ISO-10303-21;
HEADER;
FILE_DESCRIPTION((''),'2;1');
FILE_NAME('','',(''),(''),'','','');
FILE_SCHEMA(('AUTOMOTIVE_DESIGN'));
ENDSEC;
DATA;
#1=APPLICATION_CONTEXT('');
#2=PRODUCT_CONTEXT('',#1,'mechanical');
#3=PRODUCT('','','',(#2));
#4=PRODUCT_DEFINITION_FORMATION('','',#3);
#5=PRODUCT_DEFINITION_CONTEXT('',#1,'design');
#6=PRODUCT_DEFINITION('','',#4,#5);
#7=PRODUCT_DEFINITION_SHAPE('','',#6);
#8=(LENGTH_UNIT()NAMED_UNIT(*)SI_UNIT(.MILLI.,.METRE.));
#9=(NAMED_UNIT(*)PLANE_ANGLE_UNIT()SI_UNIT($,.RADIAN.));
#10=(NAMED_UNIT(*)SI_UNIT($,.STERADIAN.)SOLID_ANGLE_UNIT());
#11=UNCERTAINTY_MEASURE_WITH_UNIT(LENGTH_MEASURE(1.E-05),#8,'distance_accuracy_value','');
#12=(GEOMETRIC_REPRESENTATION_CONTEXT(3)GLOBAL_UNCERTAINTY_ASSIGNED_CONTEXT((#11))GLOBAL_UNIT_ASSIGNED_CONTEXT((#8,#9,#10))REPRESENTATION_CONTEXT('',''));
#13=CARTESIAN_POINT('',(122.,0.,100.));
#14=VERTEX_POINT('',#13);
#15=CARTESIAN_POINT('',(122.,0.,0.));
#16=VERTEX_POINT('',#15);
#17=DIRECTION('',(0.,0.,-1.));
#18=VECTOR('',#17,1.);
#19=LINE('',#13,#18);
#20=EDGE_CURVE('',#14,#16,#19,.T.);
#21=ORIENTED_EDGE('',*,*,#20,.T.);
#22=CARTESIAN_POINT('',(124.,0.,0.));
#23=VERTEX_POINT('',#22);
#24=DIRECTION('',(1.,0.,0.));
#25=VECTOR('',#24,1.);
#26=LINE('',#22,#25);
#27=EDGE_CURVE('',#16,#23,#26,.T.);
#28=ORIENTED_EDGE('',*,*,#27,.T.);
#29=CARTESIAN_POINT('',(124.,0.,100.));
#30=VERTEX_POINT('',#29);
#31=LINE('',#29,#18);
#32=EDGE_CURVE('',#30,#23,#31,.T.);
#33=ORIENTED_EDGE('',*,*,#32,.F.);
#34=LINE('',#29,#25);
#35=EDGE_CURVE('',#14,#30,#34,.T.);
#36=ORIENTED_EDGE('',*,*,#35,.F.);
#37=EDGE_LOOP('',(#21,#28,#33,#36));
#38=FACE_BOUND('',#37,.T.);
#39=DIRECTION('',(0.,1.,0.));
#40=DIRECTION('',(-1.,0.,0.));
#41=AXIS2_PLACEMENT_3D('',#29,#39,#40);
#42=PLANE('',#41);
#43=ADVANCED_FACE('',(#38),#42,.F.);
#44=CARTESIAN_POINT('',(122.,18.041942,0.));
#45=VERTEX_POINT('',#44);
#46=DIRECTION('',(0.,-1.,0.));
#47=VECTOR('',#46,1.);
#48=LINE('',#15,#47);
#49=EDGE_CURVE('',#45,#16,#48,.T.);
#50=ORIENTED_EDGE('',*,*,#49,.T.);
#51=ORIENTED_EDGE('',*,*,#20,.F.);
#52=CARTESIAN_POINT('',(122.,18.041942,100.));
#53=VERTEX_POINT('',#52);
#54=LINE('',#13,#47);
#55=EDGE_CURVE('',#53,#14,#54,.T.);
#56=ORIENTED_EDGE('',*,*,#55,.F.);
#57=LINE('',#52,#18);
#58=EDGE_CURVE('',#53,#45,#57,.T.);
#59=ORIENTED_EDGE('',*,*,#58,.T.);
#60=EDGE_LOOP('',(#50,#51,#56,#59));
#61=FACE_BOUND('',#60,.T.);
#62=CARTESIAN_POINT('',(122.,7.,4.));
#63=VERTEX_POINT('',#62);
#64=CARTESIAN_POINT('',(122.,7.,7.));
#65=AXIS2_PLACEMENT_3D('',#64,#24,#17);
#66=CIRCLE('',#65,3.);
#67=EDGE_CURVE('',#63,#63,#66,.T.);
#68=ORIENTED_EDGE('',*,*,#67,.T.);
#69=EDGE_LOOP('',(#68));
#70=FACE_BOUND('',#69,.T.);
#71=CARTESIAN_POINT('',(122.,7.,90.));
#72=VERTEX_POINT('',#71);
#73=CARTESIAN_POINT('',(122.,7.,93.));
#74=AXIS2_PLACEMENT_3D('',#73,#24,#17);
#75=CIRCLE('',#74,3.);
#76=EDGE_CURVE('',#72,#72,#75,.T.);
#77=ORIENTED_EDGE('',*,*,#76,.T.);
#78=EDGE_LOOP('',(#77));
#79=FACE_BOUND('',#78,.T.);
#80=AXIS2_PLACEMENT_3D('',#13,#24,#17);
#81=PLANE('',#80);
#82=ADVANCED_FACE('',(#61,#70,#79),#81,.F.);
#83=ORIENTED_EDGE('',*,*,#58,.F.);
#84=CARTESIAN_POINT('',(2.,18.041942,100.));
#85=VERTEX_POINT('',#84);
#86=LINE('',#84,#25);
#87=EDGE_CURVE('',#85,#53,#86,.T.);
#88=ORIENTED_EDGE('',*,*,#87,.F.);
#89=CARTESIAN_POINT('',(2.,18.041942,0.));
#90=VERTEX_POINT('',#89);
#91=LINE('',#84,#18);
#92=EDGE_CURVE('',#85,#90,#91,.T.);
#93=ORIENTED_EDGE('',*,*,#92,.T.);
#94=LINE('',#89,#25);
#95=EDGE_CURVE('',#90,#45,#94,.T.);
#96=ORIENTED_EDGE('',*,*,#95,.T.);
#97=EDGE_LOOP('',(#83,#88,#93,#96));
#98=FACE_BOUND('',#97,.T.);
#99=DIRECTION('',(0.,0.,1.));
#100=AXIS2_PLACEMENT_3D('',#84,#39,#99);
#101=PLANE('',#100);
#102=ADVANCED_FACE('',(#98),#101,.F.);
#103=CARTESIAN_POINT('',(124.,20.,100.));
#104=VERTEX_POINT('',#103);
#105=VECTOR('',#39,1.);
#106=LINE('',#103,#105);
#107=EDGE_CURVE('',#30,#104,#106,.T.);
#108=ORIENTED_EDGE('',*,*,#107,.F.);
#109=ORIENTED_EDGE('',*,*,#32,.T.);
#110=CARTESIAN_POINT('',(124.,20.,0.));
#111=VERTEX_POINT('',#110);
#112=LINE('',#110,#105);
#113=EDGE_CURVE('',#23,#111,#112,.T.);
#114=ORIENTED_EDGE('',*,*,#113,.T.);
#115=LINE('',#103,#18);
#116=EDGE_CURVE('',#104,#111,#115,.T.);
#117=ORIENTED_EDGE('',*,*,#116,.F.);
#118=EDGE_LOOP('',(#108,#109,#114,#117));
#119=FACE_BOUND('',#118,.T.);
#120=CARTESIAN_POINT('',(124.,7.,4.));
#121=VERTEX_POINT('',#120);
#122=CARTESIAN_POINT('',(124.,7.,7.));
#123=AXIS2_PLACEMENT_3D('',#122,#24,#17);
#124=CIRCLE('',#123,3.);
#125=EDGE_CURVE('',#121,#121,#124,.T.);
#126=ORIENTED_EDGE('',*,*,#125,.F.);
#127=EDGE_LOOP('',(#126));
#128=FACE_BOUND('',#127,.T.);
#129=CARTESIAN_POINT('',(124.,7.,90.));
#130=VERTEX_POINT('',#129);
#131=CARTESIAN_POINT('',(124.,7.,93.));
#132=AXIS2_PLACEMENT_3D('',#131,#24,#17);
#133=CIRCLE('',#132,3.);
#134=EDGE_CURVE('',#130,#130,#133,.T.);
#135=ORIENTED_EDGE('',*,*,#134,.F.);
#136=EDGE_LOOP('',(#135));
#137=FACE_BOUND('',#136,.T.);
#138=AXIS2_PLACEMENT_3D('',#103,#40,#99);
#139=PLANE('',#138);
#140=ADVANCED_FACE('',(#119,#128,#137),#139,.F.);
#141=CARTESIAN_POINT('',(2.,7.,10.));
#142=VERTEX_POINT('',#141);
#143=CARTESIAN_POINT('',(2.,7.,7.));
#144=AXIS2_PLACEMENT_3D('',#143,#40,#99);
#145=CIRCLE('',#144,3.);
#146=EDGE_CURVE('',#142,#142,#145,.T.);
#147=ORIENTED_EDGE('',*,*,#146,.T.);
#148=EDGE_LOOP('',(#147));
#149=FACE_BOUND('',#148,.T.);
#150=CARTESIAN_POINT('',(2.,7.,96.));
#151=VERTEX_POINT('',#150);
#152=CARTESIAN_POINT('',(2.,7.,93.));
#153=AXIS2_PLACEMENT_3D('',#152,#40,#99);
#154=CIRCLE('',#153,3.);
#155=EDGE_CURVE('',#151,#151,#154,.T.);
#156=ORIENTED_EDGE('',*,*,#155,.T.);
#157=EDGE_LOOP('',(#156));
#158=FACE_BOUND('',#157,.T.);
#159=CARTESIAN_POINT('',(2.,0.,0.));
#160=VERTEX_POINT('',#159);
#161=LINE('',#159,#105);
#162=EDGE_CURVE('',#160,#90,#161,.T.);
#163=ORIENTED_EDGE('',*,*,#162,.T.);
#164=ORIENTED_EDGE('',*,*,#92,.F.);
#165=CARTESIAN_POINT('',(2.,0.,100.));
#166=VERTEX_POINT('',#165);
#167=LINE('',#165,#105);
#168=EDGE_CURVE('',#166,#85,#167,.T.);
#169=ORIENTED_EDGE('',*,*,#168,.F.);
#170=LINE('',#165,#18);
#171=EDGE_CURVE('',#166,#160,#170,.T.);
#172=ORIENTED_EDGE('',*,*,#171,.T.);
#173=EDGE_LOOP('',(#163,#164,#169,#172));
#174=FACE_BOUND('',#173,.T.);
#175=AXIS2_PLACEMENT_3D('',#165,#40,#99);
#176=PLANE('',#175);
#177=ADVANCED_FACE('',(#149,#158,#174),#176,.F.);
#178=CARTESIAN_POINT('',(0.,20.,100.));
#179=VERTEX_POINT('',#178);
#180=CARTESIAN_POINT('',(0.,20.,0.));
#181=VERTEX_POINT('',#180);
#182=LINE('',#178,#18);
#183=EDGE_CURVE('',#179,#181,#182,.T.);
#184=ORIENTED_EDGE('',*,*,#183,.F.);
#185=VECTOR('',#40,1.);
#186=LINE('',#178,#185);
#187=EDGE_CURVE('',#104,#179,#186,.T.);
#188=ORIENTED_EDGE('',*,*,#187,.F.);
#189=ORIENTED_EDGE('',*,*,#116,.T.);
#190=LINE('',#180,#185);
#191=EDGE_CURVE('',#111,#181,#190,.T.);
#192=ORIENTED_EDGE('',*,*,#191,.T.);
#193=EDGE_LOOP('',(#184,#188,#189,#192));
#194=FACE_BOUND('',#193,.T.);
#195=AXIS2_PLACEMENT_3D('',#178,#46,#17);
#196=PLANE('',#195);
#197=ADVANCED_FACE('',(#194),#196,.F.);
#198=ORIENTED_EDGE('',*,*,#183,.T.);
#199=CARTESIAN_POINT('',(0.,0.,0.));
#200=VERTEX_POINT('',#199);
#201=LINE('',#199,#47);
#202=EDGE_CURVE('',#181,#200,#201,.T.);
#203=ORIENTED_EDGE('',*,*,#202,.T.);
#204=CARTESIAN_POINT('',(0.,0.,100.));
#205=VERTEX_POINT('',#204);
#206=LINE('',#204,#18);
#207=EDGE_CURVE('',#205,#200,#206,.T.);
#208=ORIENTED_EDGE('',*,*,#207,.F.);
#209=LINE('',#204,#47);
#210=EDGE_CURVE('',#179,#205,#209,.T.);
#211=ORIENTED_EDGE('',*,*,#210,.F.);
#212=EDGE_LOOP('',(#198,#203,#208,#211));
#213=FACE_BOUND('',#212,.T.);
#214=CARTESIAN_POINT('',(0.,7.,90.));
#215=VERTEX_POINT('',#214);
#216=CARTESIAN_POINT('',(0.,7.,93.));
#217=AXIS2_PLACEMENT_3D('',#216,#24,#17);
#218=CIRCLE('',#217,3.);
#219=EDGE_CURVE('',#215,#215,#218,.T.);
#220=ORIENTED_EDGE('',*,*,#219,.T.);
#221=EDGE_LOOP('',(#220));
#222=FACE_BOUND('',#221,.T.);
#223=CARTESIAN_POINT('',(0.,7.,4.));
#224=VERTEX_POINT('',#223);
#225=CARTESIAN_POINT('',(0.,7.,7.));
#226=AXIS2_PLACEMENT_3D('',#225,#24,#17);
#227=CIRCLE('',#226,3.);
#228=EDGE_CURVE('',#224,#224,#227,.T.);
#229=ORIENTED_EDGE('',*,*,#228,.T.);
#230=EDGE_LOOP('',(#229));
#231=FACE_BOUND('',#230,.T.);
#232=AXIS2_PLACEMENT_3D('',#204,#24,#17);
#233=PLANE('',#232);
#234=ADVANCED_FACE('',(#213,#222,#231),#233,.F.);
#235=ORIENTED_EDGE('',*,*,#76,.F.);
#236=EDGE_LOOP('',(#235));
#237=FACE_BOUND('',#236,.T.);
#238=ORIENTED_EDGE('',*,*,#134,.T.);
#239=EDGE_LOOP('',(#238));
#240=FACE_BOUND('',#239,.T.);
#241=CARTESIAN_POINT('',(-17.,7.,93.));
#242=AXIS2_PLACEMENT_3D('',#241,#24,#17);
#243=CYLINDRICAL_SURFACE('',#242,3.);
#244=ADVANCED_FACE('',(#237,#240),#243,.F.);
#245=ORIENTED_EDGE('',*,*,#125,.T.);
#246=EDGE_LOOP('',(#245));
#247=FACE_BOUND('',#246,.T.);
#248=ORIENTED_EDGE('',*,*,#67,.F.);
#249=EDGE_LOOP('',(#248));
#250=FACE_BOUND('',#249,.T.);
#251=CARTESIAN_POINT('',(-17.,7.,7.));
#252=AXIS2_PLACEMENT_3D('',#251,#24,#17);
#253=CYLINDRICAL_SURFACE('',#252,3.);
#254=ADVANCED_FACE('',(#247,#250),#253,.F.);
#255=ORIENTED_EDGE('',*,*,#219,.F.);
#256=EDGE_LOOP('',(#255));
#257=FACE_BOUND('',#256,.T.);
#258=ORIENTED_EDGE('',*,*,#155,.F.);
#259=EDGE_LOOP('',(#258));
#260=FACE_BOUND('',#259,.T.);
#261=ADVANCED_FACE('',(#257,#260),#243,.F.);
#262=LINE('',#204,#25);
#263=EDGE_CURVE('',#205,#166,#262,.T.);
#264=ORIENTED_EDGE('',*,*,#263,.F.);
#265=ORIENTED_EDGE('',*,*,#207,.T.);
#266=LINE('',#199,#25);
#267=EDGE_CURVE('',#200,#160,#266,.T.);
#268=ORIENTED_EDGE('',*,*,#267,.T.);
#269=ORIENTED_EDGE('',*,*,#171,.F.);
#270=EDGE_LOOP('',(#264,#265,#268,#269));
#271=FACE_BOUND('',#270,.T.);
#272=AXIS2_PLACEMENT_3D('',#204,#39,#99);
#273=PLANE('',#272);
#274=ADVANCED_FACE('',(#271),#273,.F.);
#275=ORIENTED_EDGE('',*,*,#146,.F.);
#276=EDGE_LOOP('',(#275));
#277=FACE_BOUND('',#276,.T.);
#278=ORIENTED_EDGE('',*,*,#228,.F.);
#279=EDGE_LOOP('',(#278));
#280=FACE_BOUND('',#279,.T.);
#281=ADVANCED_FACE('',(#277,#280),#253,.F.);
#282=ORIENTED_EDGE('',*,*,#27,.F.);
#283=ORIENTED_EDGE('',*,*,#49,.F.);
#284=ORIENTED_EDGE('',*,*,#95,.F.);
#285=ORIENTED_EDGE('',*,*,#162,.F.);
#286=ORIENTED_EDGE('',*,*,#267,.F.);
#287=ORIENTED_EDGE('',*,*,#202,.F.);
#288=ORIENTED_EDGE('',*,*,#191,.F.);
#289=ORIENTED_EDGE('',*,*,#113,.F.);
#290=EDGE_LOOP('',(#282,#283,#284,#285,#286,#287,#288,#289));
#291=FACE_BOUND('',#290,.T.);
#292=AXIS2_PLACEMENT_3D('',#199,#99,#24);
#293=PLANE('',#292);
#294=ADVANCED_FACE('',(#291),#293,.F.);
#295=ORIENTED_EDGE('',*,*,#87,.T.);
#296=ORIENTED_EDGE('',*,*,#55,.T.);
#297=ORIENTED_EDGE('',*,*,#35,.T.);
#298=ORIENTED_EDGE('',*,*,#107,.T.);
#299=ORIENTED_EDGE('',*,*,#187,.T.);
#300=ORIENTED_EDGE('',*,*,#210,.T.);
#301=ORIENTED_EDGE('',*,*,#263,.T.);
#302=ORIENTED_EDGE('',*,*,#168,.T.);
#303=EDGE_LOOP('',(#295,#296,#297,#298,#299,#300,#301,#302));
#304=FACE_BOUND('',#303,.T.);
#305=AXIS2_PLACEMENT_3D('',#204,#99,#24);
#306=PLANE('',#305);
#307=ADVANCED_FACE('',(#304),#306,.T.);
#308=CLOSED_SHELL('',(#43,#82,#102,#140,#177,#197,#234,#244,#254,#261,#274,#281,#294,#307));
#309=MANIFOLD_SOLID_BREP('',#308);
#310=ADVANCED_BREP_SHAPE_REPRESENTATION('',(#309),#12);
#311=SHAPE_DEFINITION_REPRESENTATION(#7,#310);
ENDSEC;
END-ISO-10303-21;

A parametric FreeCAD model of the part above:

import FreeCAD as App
import Part
import Sketcher

V = App.Vector
Q = App.Units.Quantity


def add_polygon(sketch, points):
    """Adds a closed chain of lines whose ends are joined by coincident constraints."""
    first, n = sketch.GeometryCount, len(points)
    for a, b in zip(points, points[1:] + points[:1]):
        sketch.addGeometry(Part.LineSegment(App.Vector(*a, 0), App.Vector(*b, 0)), False)
    for i in range(n):
        sketch.addConstraint(Sketcher.Constraint("Coincident", first + i, 2, first + (i + 1) % n, 1))

doc = App.newDocument("Part")
params = doc.addObject("Spreadsheet::Sheet", "Params")
for row, (alias, value) in enumerate([
    ("sketch1_width", "2 mm"),
    ("sketch1_width2", "120 mm"),
    ("sketch1_height", "20 mm"),
    ("pad1_length", "100 mm"),
    ("sketch2_diameter", "6 mm"),
    ("pocket1_length", "141 mm"),
    ("sketch3_diameter", "6 mm"),
    ("pocket2_length", "141 mm"),
], start=1):
    params.set(f"A{row}", alias)
    params.set(f"B{row}", "=" + value)
    params.setAlias(f"B{row}", alias)

body = doc.addObject("PartDesign::Body", "Body")

# Sketch on XY plane
sketch1 = doc.addObject("Sketcher::SketchObject", "Sketch")
body.addObject(sketch1)
sketch1.AttachmentSupport = (doc.XY_Plane, [""])
sketch1.MapMode = "FlatFace"
add_polygon(sketch1, [(0, 20), (0, 0), (2, 0), (2, 18.041942), (122, 18.041942), (122, 0), (124, 0), (124, 20)])  # lines 0-7
sketch1.addConstraint(Sketcher.Constraint("Vertical", 0))
sketch1.addConstraint(Sketcher.Constraint("Horizontal", 1))
sketch1.addConstraint(Sketcher.Constraint("Vertical", 2))
sketch1.addConstraint(Sketcher.Constraint("Horizontal", 3))
sketch1.addConstraint(Sketcher.Constraint("Vertical", 4))
sketch1.addConstraint(Sketcher.Constraint("Horizontal", 5))
sketch1.addConstraint(Sketcher.Constraint("Vertical", 6))
sketch1.addConstraint(Sketcher.Constraint("Horizontal", 7))
sketch1.addConstraint(Sketcher.Constraint("Coincident", 0, 2, -1, 1))
sketch1.addConstraint(Sketcher.Constraint("PointOnObject", 4, 2, -1))
sketch1.addConstraint(Sketcher.Constraint("Equal", 1, 5))
sketch1.addConstraint(Sketcher.Constraint("DistanceX", 1, 1, 1, 2, Q("2 mm")))
sketch1.addConstraint(Sketcher.Constraint("DistanceX", 3, 1, 3, 2, Q("120 mm")))
sketch1.addConstraint(Sketcher.Constraint("DistanceY", 0, 2, 0, 1, Q("20 mm")))
sketch1.addConstraint(Sketcher.Constraint("DistanceY", 2, 1, 2, 2, Q("18.041942 mm")))
sketch1.setExpression("Constraints[19]", "Params.sketch1_width")
sketch1.setExpression("Constraints[20]", "Params.sketch1_width2")
sketch1.setExpression("Constraints[21]", "Params.sketch1_height")
pad1 = doc.addObject("PartDesign::Pad", "Pad")
body.addObject(pad1)
pad1.Profile = sketch1
pad1.setExpression("Length", "Params.pad1_length")

# Sketch on YZ plane
sketch2 = doc.addObject("Sketcher::SketchObject", "Sketch001")
body.addObject(sketch2)
sketch2.AttachmentSupport = (doc.YZ_Plane, [""])
sketch2.MapMode = "FlatFace"
sketch2.AttachmentOffset = App.Placement(V(0, 0, 124), App.Rotation())
sketch2.addGeometry(Part.Circle(V(7, 93, 0), V(0, 0, 1), 3), False)
sketch2.addConstraint(Sketcher.Constraint("Diameter", 0, Q("6 mm")))
sketch2.addConstraint(Sketcher.Constraint("DistanceX", -1, 1, 0, 3, Q("7 mm")))
sketch2.addConstraint(Sketcher.Constraint("DistanceY", -1, 1, 0, 3, Q("93 mm")))
sketch2.setExpression("Constraints[0]", "Params.sketch2_diameter")
pocket1 = doc.addObject("PartDesign::Pocket", "Pocket")
body.addObject(pocket1)
pocket1.Profile = sketch2
pocket1.setExpression("Length", "Params.pocket1_length")

# Sketch on YZ plane
sketch3 = doc.addObject("Sketcher::SketchObject", "Sketch002")
body.addObject(sketch3)
sketch3.AttachmentSupport = (doc.YZ_Plane, [""])
sketch3.MapMode = "FlatFace"
sketch3.AttachmentOffset = App.Placement(V(0, 0, 124), App.Rotation())
sketch3.addGeometry(Part.Circle(V(7, 7, 0), V(0, 0, 1), 3), False)
sketch3.addConstraint(Sketcher.Constraint("Diameter", 0, Q("6 mm")))
sketch3.addConstraint(Sketcher.Constraint("DistanceX", -1, 1, 0, 3, Q("7 mm")))
sketch3.addConstraint(Sketcher.Constraint("DistanceY", -1, 1, 0, 3, Q("7 mm")))
sketch3.setExpression("Constraints[0]", "Params.sketch3_diameter")
pocket2 = doc.addObject("PartDesign::Pocket", "Pocket001")
body.addObject(pocket2)
pocket2.Profile = sketch3
pocket2.setExpression("Length", "Params.pocket2_length")

doc.recompute()
